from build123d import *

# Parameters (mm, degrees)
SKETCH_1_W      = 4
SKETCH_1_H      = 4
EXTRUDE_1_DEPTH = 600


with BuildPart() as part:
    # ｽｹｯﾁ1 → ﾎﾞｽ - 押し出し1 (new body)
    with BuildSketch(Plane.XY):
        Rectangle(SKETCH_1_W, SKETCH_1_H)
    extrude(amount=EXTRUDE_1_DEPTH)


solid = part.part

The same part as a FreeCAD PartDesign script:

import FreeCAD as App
import Part
import Sketcher

doc = App.newDocument("Part")
body = doc.addObject("PartDesign::Body", "Body")

sketch1 = body.newObject("Sketcher::SketchObject", "Sketch")
sketch1.AttachmentSupport = (doc.getObject("XY_Plane"), [""])
sketch1.MapMode = "FlatFace"
sketch1.addGeometry([
    Part.LineSegment(App.Vector(-2, 2, 0), App.Vector(-2, -2, 0)),
    Part.LineSegment(App.Vector(-2, -2, 0), App.Vector(2, -2, 0)),
    Part.LineSegment(App.Vector(2, -2, 0), App.Vector(2, 2, 0)),
    Part.LineSegment(App.Vector(2, 2, 0), App.Vector(-2, 2, 0)),
], False)
sketch1.addConstraint([
    Sketcher.Constraint("Coincident", 0, 2, 1, 1),
    Sketcher.Constraint("Coincident", 1, 2, 2, 1),
    Sketcher.Constraint("Coincident", 2, 2, 3, 1),
    Sketcher.Constraint("Coincident", 3, 2, 0, 1),
    Sketcher.Constraint("Vertical", 0),
    Sketcher.Constraint("Horizontal", 1),
    Sketcher.Constraint("Vertical", 2),
    Sketcher.Constraint("Horizontal", 3),
    Sketcher.Constraint("Symmetric", 0, 2, 2, 2, -1, 1),
    Sketcher.Constraint("Equal", 3, 0),
    Sketcher.Constraint("DistanceX", 1, 1, 1, 2, 4.0),
])
pad1 = body.newObject("PartDesign::Pad", "Pad")
pad1.Profile = sketch1
pad1.Length = 600

doc.recompute()
